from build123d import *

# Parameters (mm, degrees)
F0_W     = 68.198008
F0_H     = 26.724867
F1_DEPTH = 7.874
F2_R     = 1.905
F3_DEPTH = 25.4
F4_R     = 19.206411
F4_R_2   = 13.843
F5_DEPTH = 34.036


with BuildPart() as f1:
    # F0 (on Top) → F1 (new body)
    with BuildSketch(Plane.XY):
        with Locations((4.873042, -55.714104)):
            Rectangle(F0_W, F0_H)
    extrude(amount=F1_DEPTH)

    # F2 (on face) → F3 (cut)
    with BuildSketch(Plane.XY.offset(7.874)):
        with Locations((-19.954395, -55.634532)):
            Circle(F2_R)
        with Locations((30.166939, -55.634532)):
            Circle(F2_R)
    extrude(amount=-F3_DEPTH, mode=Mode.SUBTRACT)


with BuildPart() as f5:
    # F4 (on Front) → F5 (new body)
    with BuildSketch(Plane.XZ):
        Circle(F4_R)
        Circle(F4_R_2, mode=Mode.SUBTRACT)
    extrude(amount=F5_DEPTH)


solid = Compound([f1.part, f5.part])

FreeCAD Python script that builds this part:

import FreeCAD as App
import Part
import Sketcher
from FreeCAD import Vector
Q = App.Units.Quantity


def add_polygon(sketch, points):
    """Adds a closed chain of lines whose ends are joined by coincident constraints."""
    first, n = sketch.GeometryCount, len(points)
    for a, b in zip(points, points[1:] + points[:1]):
        sketch.addGeometry(Part.LineSegment(App.Vector(*a, 0), App.Vector(*b, 0)), False)
    for i in range(n):
        sketch.addConstraint(Sketcher.Constraint("Coincident", first + i, 2, first + (i + 1) % n, 1))

doc = App.newDocument("Part")
params = doc.addObject("Spreadsheet::Sheet", "Params")
for row, (alias, value) in enumerate([
    ("pad1_length", "0.31 in"),
    ("sketch2_diameter", "0.15 in"),
    ("pocket1_length", "1 in"),
    ("sketch3_diameter", "1.09 in"),
    ("pad2_length", "1.34 in"),
], start=1):
    params.set(f"A{row}", alias)
    params.set(f"B{row}", "=" + value)
    params.setAlias(f"B{row}", alias)

body = doc.addObject("PartDesign::Body", "Body")

sketch1 = doc.addObject("Sketcher::SketchObject", "Sketch")
body.addObject(sketch1)
sketch1.AttachmentSupport = (doc.XY_Plane, [""])
sketch1.MapMode = "FlatFace"
add_polygon(sketch1, [(-29, -42), (-29, -69), (39, -69), (39, -42)])
sketch1.addConstraint([
    Sketcher.Constraint("Vertical", 0),
    Sketcher.Constraint("Horizontal", 1),
    Sketcher.Constraint("Vertical", 2),
    Sketcher.Constraint("Horizontal", 3),
    Sketcher.Constraint("DistanceX", 1, 1, 1, 2, 68.198008),
    Sketcher.Constraint("DistanceY", 0, 2, 0, 1, 26.724867),
    Sketcher.Constraint("DistanceX", 0, 2, -1, 1, 29.225962),
    Sketcher.Constraint("DistanceY", 2, 2, -1, 1, 42.35167),
])
pad1 = doc.addObject("PartDesign::Pad", "Pad")
body.addObject(pad1)
pad1.Profile = sketch1
pad1.setExpression("Length", "Params.pad1_length")

sketch2 = doc.addObject("Sketcher::SketchObject", "Sketch001")
body.addObject(sketch2)
sketch2.AttachmentSupport = (doc.XY_Plane, [""])
sketch2.MapMode = "FlatFace"
sketch2.AttachmentOffset = App.Placement(Vector(0, 0, 0.31 * 25.4), App.Rotation())
sketch2.addGeometry([
    Part.Circle(Vector(-20, -55.6, 0), Vector(0, 0, 1), 1.9),
    Part.Circle(Vector(30.2, -55.6, 0), Vector(0, 0, 1), 1.9),
], False)
sketch2.addConstraint([
    Sketcher.Constraint("Equal", 0, 1),
    Sketcher.Constraint("Horizontal", 0, 3, 1, 3),
    Sketcher.Constraint("Diameter", 0, Q("0.15 in")),
    Sketcher.Constraint("DistanceX", -1, 1, 1, 3, 30.166939),
    Sketcher.Constraint("DistanceX", 0, 3, -1, 1, 19.954395),
    Sketcher.Constraint("DistanceY", 0, 3, -1, 1, 55.634532),
])
sketch2.setExpression("Constraints[2]", "Params.sketch2_diameter")
pocket1 = doc.addObject("PartDesign::Pocket", "Pocket")
body.addObject(pocket1)
pocket1.Profile = sketch2
pocket1.setExpression("Length", "Params.pocket1_length")
body2 = doc.addObject("PartDesign::Body", "Body001")

sketch3 = doc.addObject("Sketcher::SketchObject", "Sketch002")
body2.addObject(sketch3)
sketch3.AttachmentSupport = (doc.getObject("XZ_Plane001"), [""])
sketch3.MapMode = "FlatFace"
sketch3.addGeometry([
    Part.Circle(Vector(0, 0, 0), Vector(0, 0, 1), 19),
    Part.Circle(Vector(0, 0, 0), Vector(0, 0, 1), 14),
], False)
sketch3.addConstraint([
    Sketcher.Constraint("Coincident", 0, 3, -1, 1),
    Sketcher.Constraint("Coincident", 1, 3, -1, 1),
    Sketcher.Constraint("Diameter", 1, Q("1.09 in")),
    Sketcher.Constraint("Diameter", 0, 38.412822),
])
sketch3.setExpression("Constraints[2]", "Params.sketch3_diameter")
pad2 = doc.addObject("PartDesign::Pad", "Pad001")
body2.addObject(pad2)
pad2.Profile = sketch3
pad2.setExpression("Length", "Params.pad2_length")

doc.recompute()
